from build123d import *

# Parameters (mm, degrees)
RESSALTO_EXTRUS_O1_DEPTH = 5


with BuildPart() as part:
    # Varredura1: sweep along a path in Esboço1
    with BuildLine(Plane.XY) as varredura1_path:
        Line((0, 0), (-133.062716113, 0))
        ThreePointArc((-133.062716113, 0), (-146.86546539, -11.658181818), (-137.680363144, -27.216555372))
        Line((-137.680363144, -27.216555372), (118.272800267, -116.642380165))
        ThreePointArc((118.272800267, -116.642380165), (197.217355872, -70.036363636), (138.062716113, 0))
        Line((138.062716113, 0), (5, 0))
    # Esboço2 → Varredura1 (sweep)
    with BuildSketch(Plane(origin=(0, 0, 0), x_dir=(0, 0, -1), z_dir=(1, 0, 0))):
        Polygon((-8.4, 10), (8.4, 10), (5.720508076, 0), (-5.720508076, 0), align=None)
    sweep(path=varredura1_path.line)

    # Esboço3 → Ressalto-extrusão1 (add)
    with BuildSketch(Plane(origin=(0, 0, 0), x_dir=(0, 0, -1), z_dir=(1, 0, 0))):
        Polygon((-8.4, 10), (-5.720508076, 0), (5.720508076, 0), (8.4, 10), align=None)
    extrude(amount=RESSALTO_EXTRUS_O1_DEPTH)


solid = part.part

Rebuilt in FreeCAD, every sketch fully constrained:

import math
import FreeCAD as App
import Part
import Sketcher

V = App.Vector
Q = App.Units.Quantity

doc = App.newDocument("Part")
params = doc.addObject("Spreadsheet::Sheet", "Params")
for row, (alias, value) in enumerate([
    ("sketch1_height", "16.8 mm"),
    ("sketch2_radius", "14 mm"),
    ("sketch2_radius2", "60 mm"),
    ("sketch3_height", "16.8 mm"),
    ("pad1_length", "5 mm"),
], start=1):
    params.set(f"A{row}", alias)
    params.set(f"B{row}", "=" + value)
    params.setAlias(f"B{row}", alias)

body = doc.addObject("PartDesign::Body", "Body")

sketch1 = body.newObject("Sketcher::SketchObject", "Sketch")
sketch1.AttachmentSupport = (doc.getObject("YZ_Plane"), [""])
sketch1.MapMode = "FlatFace"
sketch1.addGeometry([
    Part.LineSegment(V(10, -8, 0), V(10, 8, 0)),
    Part.LineSegment(V(10, 8, 0), V(0, 6, 0)),
    Part.LineSegment(V(0, 6, 0), V(0, -6, 0)),
    Part.LineSegment(V(0, -6, 0), V(10, -8, 0)),
], False)
sketch1.addConstraint([
    Sketcher.Constraint("Coincident", 0, 2, 1, 1),
    Sketcher.Constraint("Coincident", 1, 2, 2, 1),
    Sketcher.Constraint("Coincident", 2, 2, 3, 1),
    Sketcher.Constraint("Coincident", 3, 2, 0, 1),
    Sketcher.Constraint("Vertical", 0),
    Sketcher.Constraint("Vertical", 2),
    Sketcher.Constraint("Symmetric", 1, 2, 2, 2, -1, 1),
    Sketcher.Constraint("Equal", 1, 3),
    Sketcher.Constraint("Angle", 1, Q("-165 deg")),
    Sketcher.Constraint("DistanceY", 0, 1, 0, 2, Q("16.8 mm")),
    Sketcher.Constraint("DistanceX", -1, 1, 0, 2, Q("10 mm")),
])
sketch1.setExpression("Constraints[9]", "Params.sketch1_height")

sketch2 = body.newObject("Sketcher::SketchObject", "Sketch001")
sketch2.AttachmentSupport = (doc.getObject("XY_Plane"), [""])
sketch2.MapMode = "FlatFace"
sketch2.addGeometry([
    Part.LineSegment(V(0, 0, 0), V(-133, 0, 0)),
    Part.ArcOfCircle(Part.Circle(V(-133, -14, 0), V(0, 0, 1), 14), math.radians(90), math.radians(251)),
    Part.LineSegment(V(-138, -27, 0), V(118, -117, 0)),
    Part.ArcOfCircle(Part.Circle(V(138, -60, 0), V(0, 0, 1), 60), math.radians(-109), math.radians(90)),
    Part.LineSegment(V(138, 0, 0), V(5, 0, 0)),
], False)
sketch2.addConstraint([
    Sketcher.Constraint("Tangent", 0, 2, 1, 1),
    Sketcher.Constraint("Tangent", 1, 2, 2, 1),
    Sketcher.Constraint("Tangent", 2, 2, 3, 1),
    Sketcher.Constraint("Tangent", 3, 2, 4, 1),
    Sketcher.Constraint("Horizontal", 0),
    Sketcher.Constraint("Horizontal", 4),
    Sketcher.Constraint("Coincident", 0, 1, -1, 1),
    Sketcher.Constraint("PointOnObject", 3, 2, -1),
    Sketcher.Constraint("Equal", 0, 4),
    Sketcher.Constraint("Radius", 1, Q("14 mm")),
    Sketcher.Constraint("Radius", 3, Q("60 mm")),
    Sketcher.Constraint("DistanceX", -1, 1, 4, 2, Q("5 mm")),
    Sketcher.Constraint("DistanceX", -1, 1, 2, 2, Q("118.2728 mm")),
])
sketch2.setExpression("Constraints[9]", "Params.sketch2_radius")
sketch2.setExpression("Constraints[10]", "Params.sketch2_radius2")
doc.recompute()

additivepipe = body.newObject("PartDesign::AdditivePipe", "AdditivePipe")
additivepipe.Profile = sketch1
additivepipe.Spine = (sketch2, ["Edge1", "Edge2", "Edge3", "Edge4", "Edge5"])

sketch3 = body.newObject("Sketcher::SketchObject", "Sketch002")
sketch3.AttachmentSupport = (doc.getObject("YZ_Plane"), [""])
sketch3.MapMode = "FlatFace"
sketch3.addGeometry([
    Part.LineSegment(V(10, 8, 0), V(0, 6, 0)),
    Part.LineSegment(V(0, 6, 0), V(0, -6, 0)),
    Part.LineSegment(V(0, -6, 0), V(10, -8, 0)),
    Part.LineSegment(V(10, -8, 0), V(10, 8, 0)),
], False)
sketch3.addConstraint([
    Sketcher.Constraint("Coincident", 0, 2, 1, 1),
    Sketcher.Constraint("Coincident", 1, 2, 2, 1),
    Sketcher.Constraint("Coincident", 2, 2, 3, 1),
    Sketcher.Constraint("Coincident", 3, 2, 0, 1),
    Sketcher.Constraint("Vertical", 1),
    Sketcher.Constraint("Vertical", 3),
    Sketcher.Constraint("Symmetric", 0, 2, 1, 2, -1, 1),
    Sketcher.Constraint("Equal", 0, 2),
    Sketcher.Constraint("Angle", 0, Q("-165 deg")),
    Sketcher.Constraint("DistanceY", 3, 1, 3, 2, Q("16.8 mm")),
    Sketcher.Constraint("DistanceX", -1, 1, 2, 2, Q("10 mm")),
])
sketch3.setExpression("Constraints[9]", "Params.sketch3_height")
pad1 = body.newObject("PartDesign::Pad", "Pad")
pad1.Profile = sketch3
pad1.setExpression("Length", "Params.pad1_length")

doc.recompute()
